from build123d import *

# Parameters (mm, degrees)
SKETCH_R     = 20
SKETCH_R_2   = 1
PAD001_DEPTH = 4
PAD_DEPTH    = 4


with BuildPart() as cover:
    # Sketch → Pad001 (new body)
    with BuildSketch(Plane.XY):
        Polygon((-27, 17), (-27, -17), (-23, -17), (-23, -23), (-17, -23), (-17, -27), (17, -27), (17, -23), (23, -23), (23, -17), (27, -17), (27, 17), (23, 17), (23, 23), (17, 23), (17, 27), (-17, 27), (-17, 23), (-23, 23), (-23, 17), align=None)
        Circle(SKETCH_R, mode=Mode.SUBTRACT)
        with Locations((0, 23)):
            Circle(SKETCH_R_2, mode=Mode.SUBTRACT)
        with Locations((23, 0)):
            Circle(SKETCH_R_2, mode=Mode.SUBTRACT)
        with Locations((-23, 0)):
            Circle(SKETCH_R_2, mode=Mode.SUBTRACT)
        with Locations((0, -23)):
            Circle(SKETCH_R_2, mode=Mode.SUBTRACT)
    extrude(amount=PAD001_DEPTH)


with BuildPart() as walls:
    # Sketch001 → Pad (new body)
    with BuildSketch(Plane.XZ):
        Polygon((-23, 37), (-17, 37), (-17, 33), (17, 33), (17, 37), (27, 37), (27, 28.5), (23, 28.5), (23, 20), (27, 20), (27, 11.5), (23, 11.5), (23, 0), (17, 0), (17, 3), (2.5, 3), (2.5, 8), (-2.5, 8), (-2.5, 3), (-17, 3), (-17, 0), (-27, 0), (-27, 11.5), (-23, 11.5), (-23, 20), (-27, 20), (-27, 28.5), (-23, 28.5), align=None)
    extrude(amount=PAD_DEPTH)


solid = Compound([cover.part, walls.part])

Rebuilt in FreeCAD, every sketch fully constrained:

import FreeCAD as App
import Part
import Sketcher

V = App.Vector
Q = App.Units.Quantity


def add_polygon(sketch, points):
    """Adds a closed chain of lines whose ends are joined by coincident constraints."""
    first, n = sketch.GeometryCount, len(points)
    for a, b in zip(points, points[1:] + points[:1]):
        sketch.addGeometry(Part.LineSegment(App.Vector(*a, 0), App.Vector(*b, 0)), False)
    for i in range(n):
        sketch.addConstraint(Sketcher.Constraint("Coincident", first + i, 2, first + (i + 1) % n, 1))

doc = App.newDocument("Part")
body = doc.addObject("PartDesign::Body", "Body")

# Sketch on XY plane
sketch1 = doc.addObject("Sketcher::SketchObject", "Sketch")
body.addObject(sketch1)
sketch1.AttachmentSupport = (doc.XY_Plane, [""])
sketch1.MapMode = "FlatFace"
add_polygon(sketch1, [(-27, 17), (-27, -17), (-23, -17), (-23, -23), (-17, -23), (-17, -27), (17, -27), (17, -23), (23, -23), (23, -17), (27, -17), (27, 17), (23, 17), (23, 23), (17, 23), (17, 27), (-17, 27), (-17, 23), (-23, 23), (-23, 17)])  # lines 0-19
sketch1.addGeometry(Part.Circle(V(0, -23, 0), V(0, 0, 1), 1), False)  # 20
sketch1.addGeometry(Part.Circle(V(-23, 0, 0), V(0, 0, 1), 1), False)  # 21
sketch1.addGeometry(Part.Circle(V(0, 0, 0), V(0, 0, 1), 20), False)  # 22
sketch1.addGeometry(Part.Circle(V(23, 0, 0), V(0, 0, 1), 1), False)  # 23
sketch1.addGeometry(Part.Circle(V(0, 23, 0), V(0, 0, 1), 1), False)  # 24
sketch1.addConstraint(Sketcher.Constraint("Vertical", 0))
sketch1.addConstraint(Sketcher.Constraint("Horizontal", 1))
sketch1.addConstraint(Sketcher.Constraint("Vertical", 2))
sketch1.addConstraint(Sketcher.Constraint("Horizontal", 3))
sketch1.addConstraint(Sketcher.Constraint("Vertical", 4))
sketch1.addConstraint(Sketcher.Constraint("Horizontal", 5))
sketch1.addConstraint(Sketcher.Constraint("Vertical", 6))
sketch1.addConstraint(Sketcher.Constraint("Horizontal", 7))
sketch1.addConstraint(Sketcher.Constraint("Vertical", 8))
sketch1.addConstraint(Sketcher.Constraint("Horizontal", 9))
sketch1.addConstraint(Sketcher.Constraint("Vertical", 10))
sketch1.addConstraint(Sketcher.Constraint("Horizontal", 11))
sketch1.addConstraint(Sketcher.Constraint("Vertical", 12))
sketch1.addConstraint(Sketcher.Constraint("Horizontal", 13))
sketch1.addConstraint(Sketcher.Constraint("Vertical", 14))
sketch1.addConstraint(Sketcher.Constraint("Horizontal", 15))
sketch1.addConstraint(Sketcher.Constraint("Vertical", 16))
sketch1.addConstraint(Sketcher.Constraint("Horizontal", 17))
sketch1.addConstraint(Sketcher.Constraint("Vertical", 18))
sketch1.addConstraint(Sketcher.Constraint("Horizontal", 19))
sketch1.addConstraint(Sketcher.Constraint("Coincident", 22, 3, -1, 1))
sketch1.addConstraint(Sketcher.Constraint("Equal", 20, 21))
sketch1.addConstraint(Sketcher.Constraint("Equal", 21, 23))
sketch1.addConstraint(Sketcher.Constraint("Equal", 23, 24))
sketch1.addConstraint(Sketcher.Constraint("Symmetric", 21, 3, 23, 3, -1, 1))
sketch1.addConstraint(Sketcher.Constraint("Symmetric", 20, 3, 24, 3, -1, 1))
sketch1.addConstraint(Sketcher.Constraint("Symmetric", 0, 2, 10, 2, -1, 1))
sketch1.addConstraint(Sketcher.Constraint("Symmetric", 2, 2, 12, 2, -1, 1))
sketch1.addConstraint(Sketcher.Constraint("Symmetric", 4, 2, 14, 2, -1, 1))
sketch1.addConstraint(Sketcher.Constraint("Symmetric", 6, 2, 16, 2, -1, 1))
sketch1.addConstraint(Sketcher.Constraint("Symmetric", 8, 2, 18, 2, -1, 1))
sketch1.addConstraint(Sketcher.Constraint("Symmetric", 3, 2, 6, 2, -2))
sketch1.addConstraint(Sketcher.Constraint("Symmetric", 1, 2, 8, 2, -2))
sketch1.addConstraint(Sketcher.Constraint("PointOnObject", 20, 3, -2))
sketch1.addConstraint(Sketcher.Constraint("PointOnObject", 21, 3, -1))
sketch1.addConstraint(Sketcher.Constraint("Horizontal", 20, 3, 2, 2))
sketch1.addConstraint(Sketcher.Constraint("Vertical", 21, 3, 1, 2))
sketch1.addConstraint(Sketcher.Constraint("Equal", 15, 0))
sketch1.addConstraint(Sketcher.Constraint("Equal", 17, 2))
sketch1.addConstraint(Sketcher.Constraint("Equal", 19, 4))
sketch1.addConstraint(Sketcher.Constraint("Diameter", 20, Q("2 mm")))
sketch1.addConstraint(Sketcher.Constraint("Diameter", 22, Q("40 mm")))
sketch1.addConstraint(Sketcher.Constraint("DistanceX", 1, 1, 1, 2, Q("4 mm")))
sketch1.addConstraint(Sketcher.Constraint("DistanceX", 3, 1, 3, 2, Q("6 mm")))
sketch1.addConstraint(Sketcher.Constraint("DistanceX", 5, 1, 5, 2, Q("34 mm")))
pad1 = doc.addObject("PartDesign::Pad", "Pad")
body.addObject(pad1)
pad1.Profile = sketch1
pad1.Length = 4
body2 = doc.addObject("PartDesign::Body", "Body001")

# Sketch on XZ plane
sketch2 = doc.addObject("Sketcher::SketchObject", "Sketch001")
body2.addObject(sketch2)
sketch2.AttachmentSupport = (doc.getObject("XZ_Plane001"), [""])
sketch2.MapMode = "FlatFace"
add_polygon(sketch2, [(-17, 37), (-23, 37), (-23, 28.5), (-27, 28.5), (-27, 20), (-23, 20), (-23, 11.5), (-27, 11.5), (-27, 0), (-17, 0), (-17, 3), (-2.5, 3), (-2.5, 8), (2.5, 8), (2.5, 3), (17, 3), (17, 0), (23, 0), (23, 11.5), (27, 11.5), (27, 20), (23, 20), (23, 28.5), (27, 28.5), (27, 37), (17, 37), (17, 33), (-17, 33)])  # lines 0-27
sketch2.addConstraint(Sketcher.Constraint("Horizontal", 0))
sketch2.addConstraint(Sketcher.Constraint("Vertical", 1))
sketch2.addConstraint(Sketcher.Constraint("Horizontal", 2))
sketch2.addConstraint(Sketcher.Constraint("Vertical", 3))
sketch2.addConstraint(Sketcher.Constraint("Horizontal", 4))
sketch2.addConstraint(Sketcher.Constraint("Vertical", 5))
sketch2.addConstraint(Sketcher.Constraint("Horizontal", 6))
sketch2.addConstraint(Sketcher.Constraint("Vertical", 7))
sketch2.addConstraint(Sketcher.Constraint("Horizontal", 8))
sketch2.addConstraint(Sketcher.Constraint("Vertical", 9))
sketch2.addConstraint(Sketcher.Constraint("Horizontal", 10))
sketch2.addConstraint(Sketcher.Constraint("Vertical", 11))
sketch2.addConstraint(Sketcher.Constraint("Horizontal", 12))
sketch2.addConstraint(Sketcher.Constraint("Vertical", 13))
sketch2.addConstraint(Sketcher.Constraint("Horizontal", 14))
sketch2.addConstraint(Sketcher.Constraint("Vertical", 15))
sketch2.addConstraint(Sketcher.Constraint("Horizontal", 16))
sketch2.addConstraint(Sketcher.Constraint("Vertical", 17))
sketch2.addConstraint(Sketcher.Constraint("Horizontal", 18))
sketch2.addConstraint(Sketcher.Constraint("Vertical", 19))
sketch2.addConstraint(Sketcher.Constraint("Horizontal", 20))
sketch2.addConstraint(Sketcher.Constraint("Vertical", 21))
sketch2.addConstraint(Sketcher.Constraint("Horizontal", 22))
sketch2.addConstraint(Sketcher.Constraint("Vertical", 23))
sketch2.addConstraint(Sketcher.Constraint("Horizontal", 24))
sketch2.addConstraint(Sketcher.Constraint("Vertical", 25))
sketch2.addConstraint(Sketcher.Constraint("Horizontal", 26))
sketch2.addConstraint(Sketcher.Constraint("Vertical", 27))
sketch2.addConstraint(Sketcher.Constraint("Symmetric", 8, 2, 15, 2, -1, 1))
sketch2.addConstraint(Sketcher.Constraint("Symmetric", 10, 2, 13, 2, -2))
sketch2.addConstraint(Sketcher.Constraint("Symmetric", 5, 2, 17, 2, -2))
sketch2.addConstraint(Sketcher.Constraint("Symmetric", 3, 2, 19, 2, -2))
sketch2.addConstraint(Sketcher.Constraint("Symmetric", 1, 2, 21, 2, -2))
sketch2.addConstraint(Sketcher.Constraint("Symmetric", 24, 2, 27, 2, -2))
sketch2.addConstraint(Sketcher.Constraint("PointOnObject", 7, 2, -1))
sketch2.addConstraint(Sketcher.Constraint("Vertical", 1, 2, 4, 2))
sketch2.addConstraint(Sketcher.Constraint("Vertical", 3, 2, 6, 2))
sketch2.addConstraint(Sketcher.Constraint("Vertical", 19, 2, 22, 2))
sketch2.addConstraint(Sketcher.Constraint("Vertical", 15, 2, 24, 2))
sketch2.addConstraint(Sketcher.Constraint("Equal", 1, 3))
sketch2.addConstraint(Sketcher.Constraint("Equal", 3, 5))
sketch2.addConstraint(Sketcher.Constraint("Equal", 12, 11))
sketch2.addConstraint(Sketcher.Constraint("Equal", 22, 25))
sketch2.addConstraint(Sketcher.Constraint("DistanceX", 0, 2, 0, 1, Q("6 mm")))
sketch2.addConstraint(Sketcher.Constraint("DistanceX", 2, 2, 2, 1, Q("4 mm")))
sketch2.addConstraint(Sketcher.Constraint("DistanceX", 12, 1, 12, 2, Q("5 mm")))
sketch2.addConstraint(Sketcher.Constraint("DistanceX", 26, 2, 26, 1, Q("34 mm")))
sketch2.addConstraint(Sketcher.Constraint("DistanceY", 9, 1, 9, 2, Q("3 mm")))
sketch2.addConstraint(Sketcher.Constraint("DistanceY", 1, 2, 1, 1, Q("8.5 mm")))
sketch2.addConstraint(Sketcher.Constraint("DistanceY", 7, 2, 7, 1, Q("11.5 mm")))
pad2 = doc.addObject("PartDesign::Pad", "Pad001")
body2.addObject(pad2)
pad2.Profile = sketch2
pad2.Length = 4

doc.recompute()
